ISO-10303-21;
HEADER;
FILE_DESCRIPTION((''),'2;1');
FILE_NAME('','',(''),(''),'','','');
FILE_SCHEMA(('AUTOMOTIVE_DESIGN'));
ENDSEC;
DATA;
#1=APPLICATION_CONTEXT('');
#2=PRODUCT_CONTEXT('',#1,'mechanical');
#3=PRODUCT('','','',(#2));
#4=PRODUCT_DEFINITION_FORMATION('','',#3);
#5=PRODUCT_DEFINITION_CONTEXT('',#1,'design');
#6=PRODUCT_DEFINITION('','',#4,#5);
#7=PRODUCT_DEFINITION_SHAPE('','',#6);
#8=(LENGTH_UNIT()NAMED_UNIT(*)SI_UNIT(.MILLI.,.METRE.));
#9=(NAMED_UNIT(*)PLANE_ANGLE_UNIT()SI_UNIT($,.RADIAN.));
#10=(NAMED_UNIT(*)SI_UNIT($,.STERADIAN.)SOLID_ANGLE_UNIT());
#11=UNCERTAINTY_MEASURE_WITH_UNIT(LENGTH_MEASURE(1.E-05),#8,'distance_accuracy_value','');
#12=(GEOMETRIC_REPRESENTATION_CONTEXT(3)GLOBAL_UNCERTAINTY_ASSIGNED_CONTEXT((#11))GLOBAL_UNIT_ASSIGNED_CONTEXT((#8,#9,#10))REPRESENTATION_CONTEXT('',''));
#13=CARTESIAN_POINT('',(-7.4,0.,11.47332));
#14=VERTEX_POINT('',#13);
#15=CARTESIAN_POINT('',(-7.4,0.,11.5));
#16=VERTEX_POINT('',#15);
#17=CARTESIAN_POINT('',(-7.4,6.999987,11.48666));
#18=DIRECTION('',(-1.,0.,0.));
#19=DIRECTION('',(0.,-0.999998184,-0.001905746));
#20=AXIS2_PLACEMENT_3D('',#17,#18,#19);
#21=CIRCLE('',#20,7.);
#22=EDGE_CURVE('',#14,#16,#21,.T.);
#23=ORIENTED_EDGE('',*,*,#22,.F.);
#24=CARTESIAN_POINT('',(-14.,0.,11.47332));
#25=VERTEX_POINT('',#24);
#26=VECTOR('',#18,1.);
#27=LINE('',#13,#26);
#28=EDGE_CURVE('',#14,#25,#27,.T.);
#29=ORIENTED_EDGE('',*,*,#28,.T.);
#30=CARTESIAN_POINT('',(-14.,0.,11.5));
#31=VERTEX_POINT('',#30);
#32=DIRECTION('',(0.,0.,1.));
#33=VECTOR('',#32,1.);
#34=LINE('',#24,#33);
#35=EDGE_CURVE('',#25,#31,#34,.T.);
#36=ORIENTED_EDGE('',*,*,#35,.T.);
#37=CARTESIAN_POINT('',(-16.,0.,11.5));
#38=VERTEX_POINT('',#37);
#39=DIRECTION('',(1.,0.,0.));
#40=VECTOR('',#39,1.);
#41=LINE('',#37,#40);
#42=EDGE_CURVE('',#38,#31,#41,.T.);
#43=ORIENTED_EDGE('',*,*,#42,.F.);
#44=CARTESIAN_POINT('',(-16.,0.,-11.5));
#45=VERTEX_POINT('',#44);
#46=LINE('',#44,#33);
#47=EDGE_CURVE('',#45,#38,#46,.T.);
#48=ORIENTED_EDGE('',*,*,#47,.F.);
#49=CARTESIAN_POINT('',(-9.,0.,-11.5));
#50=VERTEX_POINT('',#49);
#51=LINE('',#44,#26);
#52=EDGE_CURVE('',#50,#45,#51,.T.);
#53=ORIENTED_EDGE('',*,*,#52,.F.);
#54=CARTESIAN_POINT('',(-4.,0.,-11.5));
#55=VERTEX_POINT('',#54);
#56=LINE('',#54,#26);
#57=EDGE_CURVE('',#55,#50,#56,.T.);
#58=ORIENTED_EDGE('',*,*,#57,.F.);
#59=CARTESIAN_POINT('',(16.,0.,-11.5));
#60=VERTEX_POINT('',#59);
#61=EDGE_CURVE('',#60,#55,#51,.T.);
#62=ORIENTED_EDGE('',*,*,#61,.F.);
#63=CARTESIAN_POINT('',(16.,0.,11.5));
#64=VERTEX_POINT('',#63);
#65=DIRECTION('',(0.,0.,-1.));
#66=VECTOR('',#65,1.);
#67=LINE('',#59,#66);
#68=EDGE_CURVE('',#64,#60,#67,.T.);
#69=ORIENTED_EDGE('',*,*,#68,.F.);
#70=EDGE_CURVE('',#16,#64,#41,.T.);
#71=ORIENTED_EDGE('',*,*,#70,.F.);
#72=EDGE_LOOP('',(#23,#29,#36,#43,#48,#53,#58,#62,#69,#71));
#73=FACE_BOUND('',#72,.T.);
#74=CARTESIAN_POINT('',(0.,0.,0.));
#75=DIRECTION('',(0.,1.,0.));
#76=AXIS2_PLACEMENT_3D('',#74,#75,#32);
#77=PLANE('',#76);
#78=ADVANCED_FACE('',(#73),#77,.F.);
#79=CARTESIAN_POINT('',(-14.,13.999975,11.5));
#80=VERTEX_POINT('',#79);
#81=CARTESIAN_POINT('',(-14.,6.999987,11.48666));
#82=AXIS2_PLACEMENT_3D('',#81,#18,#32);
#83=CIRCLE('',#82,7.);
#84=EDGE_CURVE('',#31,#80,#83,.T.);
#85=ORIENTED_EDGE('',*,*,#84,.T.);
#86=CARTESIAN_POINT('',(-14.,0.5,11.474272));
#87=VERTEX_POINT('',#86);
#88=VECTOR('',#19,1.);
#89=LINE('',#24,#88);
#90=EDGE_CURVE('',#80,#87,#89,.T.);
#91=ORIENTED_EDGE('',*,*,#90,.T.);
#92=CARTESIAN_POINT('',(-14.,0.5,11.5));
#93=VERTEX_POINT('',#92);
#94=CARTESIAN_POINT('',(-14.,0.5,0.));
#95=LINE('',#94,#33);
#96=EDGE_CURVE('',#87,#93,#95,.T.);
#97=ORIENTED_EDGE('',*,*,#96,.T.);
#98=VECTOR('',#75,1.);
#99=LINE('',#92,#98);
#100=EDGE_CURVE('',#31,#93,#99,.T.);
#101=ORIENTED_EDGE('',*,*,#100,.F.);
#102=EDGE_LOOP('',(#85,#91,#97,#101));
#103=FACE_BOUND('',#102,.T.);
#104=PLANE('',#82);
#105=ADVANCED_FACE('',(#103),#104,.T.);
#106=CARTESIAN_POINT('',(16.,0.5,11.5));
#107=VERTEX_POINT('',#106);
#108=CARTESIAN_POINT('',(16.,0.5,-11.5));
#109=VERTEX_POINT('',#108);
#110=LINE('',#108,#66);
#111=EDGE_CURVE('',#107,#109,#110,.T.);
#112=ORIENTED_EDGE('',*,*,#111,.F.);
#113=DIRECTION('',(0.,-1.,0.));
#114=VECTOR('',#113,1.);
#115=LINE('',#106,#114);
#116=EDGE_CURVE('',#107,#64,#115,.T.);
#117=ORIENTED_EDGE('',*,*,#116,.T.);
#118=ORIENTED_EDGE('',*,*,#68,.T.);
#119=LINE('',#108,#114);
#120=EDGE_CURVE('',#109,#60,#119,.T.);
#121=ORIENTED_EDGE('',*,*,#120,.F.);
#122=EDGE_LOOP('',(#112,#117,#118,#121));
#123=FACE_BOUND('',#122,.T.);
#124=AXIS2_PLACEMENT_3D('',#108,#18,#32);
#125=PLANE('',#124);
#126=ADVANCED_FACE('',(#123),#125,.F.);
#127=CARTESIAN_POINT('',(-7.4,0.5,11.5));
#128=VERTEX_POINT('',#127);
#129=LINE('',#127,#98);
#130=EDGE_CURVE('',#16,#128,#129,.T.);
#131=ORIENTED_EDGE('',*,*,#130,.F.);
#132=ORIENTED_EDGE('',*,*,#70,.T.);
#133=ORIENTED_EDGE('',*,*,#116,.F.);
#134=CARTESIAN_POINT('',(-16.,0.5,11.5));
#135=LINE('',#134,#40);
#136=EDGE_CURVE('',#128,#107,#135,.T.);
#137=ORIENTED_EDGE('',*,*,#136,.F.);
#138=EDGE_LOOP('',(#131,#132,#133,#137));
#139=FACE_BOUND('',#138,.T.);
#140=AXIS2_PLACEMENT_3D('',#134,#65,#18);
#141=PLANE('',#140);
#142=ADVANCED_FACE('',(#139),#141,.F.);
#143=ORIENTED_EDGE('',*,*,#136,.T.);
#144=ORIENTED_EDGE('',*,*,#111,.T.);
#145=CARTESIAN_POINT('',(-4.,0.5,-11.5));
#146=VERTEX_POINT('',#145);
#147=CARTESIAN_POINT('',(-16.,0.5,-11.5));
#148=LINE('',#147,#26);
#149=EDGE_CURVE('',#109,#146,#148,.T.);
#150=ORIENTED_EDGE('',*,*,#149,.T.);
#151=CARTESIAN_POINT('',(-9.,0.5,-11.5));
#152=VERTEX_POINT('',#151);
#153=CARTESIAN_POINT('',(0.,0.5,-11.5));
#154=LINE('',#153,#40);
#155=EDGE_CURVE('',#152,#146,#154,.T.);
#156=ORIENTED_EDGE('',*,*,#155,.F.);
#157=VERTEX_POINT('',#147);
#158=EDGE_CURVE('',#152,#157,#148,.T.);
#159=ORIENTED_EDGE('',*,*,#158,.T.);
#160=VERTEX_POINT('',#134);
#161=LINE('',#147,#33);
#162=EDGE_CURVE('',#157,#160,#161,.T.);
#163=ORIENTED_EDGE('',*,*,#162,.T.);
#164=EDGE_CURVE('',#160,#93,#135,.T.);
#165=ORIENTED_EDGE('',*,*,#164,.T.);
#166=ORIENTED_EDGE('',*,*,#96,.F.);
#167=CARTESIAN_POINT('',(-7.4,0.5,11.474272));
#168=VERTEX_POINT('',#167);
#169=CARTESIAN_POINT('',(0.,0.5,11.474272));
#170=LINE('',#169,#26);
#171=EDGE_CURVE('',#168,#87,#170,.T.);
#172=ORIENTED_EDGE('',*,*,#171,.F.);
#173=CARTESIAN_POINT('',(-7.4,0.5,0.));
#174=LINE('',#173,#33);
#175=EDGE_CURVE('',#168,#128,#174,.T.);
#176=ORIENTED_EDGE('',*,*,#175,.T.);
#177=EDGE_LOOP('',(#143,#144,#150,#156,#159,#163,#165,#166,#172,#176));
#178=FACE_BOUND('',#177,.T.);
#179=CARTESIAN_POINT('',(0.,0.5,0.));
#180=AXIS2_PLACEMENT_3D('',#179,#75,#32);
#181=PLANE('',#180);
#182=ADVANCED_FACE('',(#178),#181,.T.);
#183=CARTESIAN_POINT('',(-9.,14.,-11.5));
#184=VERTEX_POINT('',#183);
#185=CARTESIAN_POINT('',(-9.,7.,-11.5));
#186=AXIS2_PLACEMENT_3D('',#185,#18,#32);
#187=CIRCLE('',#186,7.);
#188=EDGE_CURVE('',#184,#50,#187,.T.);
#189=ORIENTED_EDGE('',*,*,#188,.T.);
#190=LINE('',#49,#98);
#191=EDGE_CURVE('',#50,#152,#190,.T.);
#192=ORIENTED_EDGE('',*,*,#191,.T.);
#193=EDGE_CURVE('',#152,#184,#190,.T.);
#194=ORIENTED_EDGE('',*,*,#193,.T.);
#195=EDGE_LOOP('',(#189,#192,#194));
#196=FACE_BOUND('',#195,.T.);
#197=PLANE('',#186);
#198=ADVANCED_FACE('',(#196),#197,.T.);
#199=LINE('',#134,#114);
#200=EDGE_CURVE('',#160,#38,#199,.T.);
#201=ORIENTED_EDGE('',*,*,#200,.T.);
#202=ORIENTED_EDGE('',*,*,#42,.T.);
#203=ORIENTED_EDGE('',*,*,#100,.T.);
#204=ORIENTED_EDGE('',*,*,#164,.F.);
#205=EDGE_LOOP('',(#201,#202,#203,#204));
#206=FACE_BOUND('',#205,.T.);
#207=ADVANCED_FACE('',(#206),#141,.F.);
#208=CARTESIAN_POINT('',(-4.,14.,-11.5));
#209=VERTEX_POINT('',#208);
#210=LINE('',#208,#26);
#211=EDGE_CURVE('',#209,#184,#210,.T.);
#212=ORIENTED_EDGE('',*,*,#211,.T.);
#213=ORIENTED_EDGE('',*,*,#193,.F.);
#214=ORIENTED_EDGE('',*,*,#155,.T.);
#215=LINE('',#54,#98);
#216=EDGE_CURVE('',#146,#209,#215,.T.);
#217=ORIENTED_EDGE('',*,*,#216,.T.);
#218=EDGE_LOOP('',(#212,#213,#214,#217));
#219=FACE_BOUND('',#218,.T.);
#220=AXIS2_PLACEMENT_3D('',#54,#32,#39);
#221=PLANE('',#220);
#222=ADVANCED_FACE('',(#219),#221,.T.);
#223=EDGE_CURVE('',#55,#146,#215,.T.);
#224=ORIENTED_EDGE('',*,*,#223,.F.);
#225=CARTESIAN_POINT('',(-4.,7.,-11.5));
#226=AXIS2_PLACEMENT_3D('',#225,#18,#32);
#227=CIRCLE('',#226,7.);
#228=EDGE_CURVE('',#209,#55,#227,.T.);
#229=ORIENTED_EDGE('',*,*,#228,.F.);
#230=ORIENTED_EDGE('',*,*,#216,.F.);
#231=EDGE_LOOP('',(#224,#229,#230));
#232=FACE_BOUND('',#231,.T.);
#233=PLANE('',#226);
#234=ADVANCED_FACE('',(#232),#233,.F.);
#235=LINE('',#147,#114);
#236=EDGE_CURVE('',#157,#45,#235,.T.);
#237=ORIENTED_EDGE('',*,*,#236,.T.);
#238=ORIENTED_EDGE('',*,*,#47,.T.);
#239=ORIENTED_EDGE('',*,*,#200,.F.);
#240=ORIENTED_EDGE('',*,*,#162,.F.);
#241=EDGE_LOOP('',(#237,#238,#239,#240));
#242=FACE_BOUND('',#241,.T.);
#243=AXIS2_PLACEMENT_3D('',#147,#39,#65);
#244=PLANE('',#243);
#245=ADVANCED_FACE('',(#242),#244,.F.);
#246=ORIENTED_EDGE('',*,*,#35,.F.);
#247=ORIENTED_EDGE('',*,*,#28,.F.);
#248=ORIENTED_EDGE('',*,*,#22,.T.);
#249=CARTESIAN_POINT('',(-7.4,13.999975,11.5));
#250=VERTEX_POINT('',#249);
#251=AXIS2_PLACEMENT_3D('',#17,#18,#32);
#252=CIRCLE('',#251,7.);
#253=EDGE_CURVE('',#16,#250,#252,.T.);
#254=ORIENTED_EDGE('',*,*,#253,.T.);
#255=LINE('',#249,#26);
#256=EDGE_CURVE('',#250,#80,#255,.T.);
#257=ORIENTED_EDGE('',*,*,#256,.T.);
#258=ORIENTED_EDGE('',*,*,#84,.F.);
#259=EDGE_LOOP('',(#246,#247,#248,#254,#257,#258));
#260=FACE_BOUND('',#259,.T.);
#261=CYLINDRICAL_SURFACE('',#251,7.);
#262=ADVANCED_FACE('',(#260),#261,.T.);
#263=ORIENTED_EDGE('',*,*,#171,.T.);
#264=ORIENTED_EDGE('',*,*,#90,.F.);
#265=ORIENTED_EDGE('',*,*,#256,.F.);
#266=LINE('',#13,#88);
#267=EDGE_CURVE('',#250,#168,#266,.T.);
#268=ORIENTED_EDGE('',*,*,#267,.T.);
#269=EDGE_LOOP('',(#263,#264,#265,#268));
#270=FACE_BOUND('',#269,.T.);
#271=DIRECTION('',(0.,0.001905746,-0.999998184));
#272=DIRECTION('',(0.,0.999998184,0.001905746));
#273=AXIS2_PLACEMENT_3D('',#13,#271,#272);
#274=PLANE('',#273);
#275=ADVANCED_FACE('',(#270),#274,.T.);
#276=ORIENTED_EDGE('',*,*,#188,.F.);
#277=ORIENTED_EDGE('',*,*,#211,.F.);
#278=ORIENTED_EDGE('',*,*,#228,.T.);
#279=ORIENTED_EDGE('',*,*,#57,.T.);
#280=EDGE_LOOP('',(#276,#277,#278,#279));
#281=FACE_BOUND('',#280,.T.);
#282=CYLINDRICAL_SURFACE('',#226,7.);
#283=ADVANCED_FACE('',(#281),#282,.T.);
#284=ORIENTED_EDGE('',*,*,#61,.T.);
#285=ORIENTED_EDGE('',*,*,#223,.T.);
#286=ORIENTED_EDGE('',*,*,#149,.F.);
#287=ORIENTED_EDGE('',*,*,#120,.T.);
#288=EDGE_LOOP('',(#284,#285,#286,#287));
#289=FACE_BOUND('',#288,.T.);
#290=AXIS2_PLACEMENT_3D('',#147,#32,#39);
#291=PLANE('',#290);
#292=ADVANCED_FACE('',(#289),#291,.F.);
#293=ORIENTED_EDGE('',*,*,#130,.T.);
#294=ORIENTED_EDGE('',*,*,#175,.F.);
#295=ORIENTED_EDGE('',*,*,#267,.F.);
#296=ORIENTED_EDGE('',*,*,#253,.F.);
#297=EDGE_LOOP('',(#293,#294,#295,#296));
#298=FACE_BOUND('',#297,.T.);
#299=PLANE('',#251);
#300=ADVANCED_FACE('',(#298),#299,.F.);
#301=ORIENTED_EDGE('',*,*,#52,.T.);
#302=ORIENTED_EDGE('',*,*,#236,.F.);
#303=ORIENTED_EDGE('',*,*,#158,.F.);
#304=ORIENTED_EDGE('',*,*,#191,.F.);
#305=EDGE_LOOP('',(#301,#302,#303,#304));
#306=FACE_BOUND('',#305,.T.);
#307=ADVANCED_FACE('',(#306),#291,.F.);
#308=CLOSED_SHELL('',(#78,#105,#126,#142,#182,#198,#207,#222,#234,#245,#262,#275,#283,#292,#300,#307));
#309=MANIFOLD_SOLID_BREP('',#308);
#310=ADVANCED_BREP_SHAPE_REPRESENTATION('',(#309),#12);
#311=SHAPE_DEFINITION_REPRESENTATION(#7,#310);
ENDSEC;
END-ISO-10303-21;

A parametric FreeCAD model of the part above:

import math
import FreeCAD as App
import Part
import Sketcher
from FreeCAD import Vector


def add_polygon(sketch, points):
    """Adds a closed chain of lines whose ends are joined by coincident constraints."""
    first, n = sketch.GeometryCount, len(points)
    for a, b in zip(points, points[1:] + points[:1]):
        sketch.addGeometry(Part.LineSegment(App.Vector(*a, 0), App.Vector(*b, 0)), False)
    for i in range(n):
        sketch.addConstraint(Sketcher.Constraint("Coincident", first + i, 2, first + (i + 1) % n, 1))

doc = App.newDocument("Part")
body = doc.addObject("PartDesign::Body", "Body")

sketch1 = body.newObject("Sketcher::SketchObject", "Sketch")
sketch1.AttachmentSupport = (doc.getObject("XZ_Plane"), [""])
sketch1.MapMode = "FlatFace"
add_polygon(sketch1, [(-16, -12), (-16, 12), (16, 12), (16, -12)])
sketch1.addConstraint([
    Sketcher.Constraint("Vertical", 0),
    Sketcher.Constraint("Horizontal", 1),
    Sketcher.Constraint("Vertical", 2),
    Sketcher.Constraint("Horizontal", 3),
    Sketcher.Constraint("Symmetric", 0, 2, 2, 2, -1, 1),
    Sketcher.Constraint("DistanceX", 1, 1, 1, 2, 32.0),
    Sketcher.Constraint("DistanceY", 0, 1, 0, 2, 23.0),
])
pad1 = body.newObject("PartDesign::Pad", "Pad")
pad1.Profile = sketch1
pad1.Length = 0.5
pad1.Reversed = True

sketch2 = body.newObject("Sketcher::SketchObject", "Sketch001")
sketch2.AttachmentSupport = (doc.getObject("YZ_Plane"), [""])
sketch2.MapMode = "FlatFace"
sketch2.AttachmentOffset = App.Placement(Vector(0, 0, -9), App.Rotation())
sketch2.addGeometry([
    Part.LineSegment(Vector(0, -12, 0), Vector(14, -12, 0)),
    Part.ArcOfCircle(Part.Circle(Vector(7, -12, 0), Vector(0, 0, 1), 7), math.radians(180), math.radians(360)),
], False)
sketch2.addConstraint([
    Sketcher.Constraint("Coincident", 0, 1, 1, 1),
    Sketcher.Constraint("Coincident", 1, 2, 0, 2),
    Sketcher.Constraint("Horizontal", 0),
    Sketcher.Constraint("PointOnObject", 0, 1, -2),
    Sketcher.Constraint("Horizontal", 1, 3, 0, 1),
    Sketcher.Constraint("Radius", 1, 7.0),
    Sketcher.Constraint("DistanceY", 1, 3, -1, 1, 11.5),
])
pad2 = body.newObject("PartDesign::Pad", "Pad001")
pad2.Profile = sketch2
pad2.Length = 5

sketch3 = body.newObject("Sketcher::SketchObject", "Sketch002")
sketch3.AttachmentSupport = (doc.getObject("YZ_Plane"), [""])
sketch3.MapMode = "FlatFace"
sketch3.AttachmentOffset = App.Placement(Vector(0, 0, -14), App.Rotation())
sketch3.addGeometry([
    Part.LineSegment(Vector(14, 12, 0), Vector(0, 11, 0)),
    Part.ArcOfCircle(Part.Circle(Vector(7, 11, 0), Vector(0, 0, 1), 7), math.radians(0), math.radians(180)),
], False)
sketch3.addConstraint([
    Sketcher.Constraint("Coincident", 0, 1, 1, 1),
    Sketcher.Constraint("Coincident", 1, 2, 0, 2),
    Sketcher.Constraint("PointOnObject", 1, 2, -2),
    Sketcher.Constraint("Radius", 1, 7.0),
    Sketcher.Constraint("DistanceY", -1, 1, 0, 1, 11.5),
    Sketcher.Constraint("DistanceY", -1, 1, 1, 3, 11.48666),
    Sketcher.Constraint("DistanceY", -1, 1, 1, 2, 11.47332),
])
pad3 = body.newObject("PartDesign::Pad", "Pad002")
pad3.Profile = sketch3
pad3.Length = 6.6

doc.recompute()
